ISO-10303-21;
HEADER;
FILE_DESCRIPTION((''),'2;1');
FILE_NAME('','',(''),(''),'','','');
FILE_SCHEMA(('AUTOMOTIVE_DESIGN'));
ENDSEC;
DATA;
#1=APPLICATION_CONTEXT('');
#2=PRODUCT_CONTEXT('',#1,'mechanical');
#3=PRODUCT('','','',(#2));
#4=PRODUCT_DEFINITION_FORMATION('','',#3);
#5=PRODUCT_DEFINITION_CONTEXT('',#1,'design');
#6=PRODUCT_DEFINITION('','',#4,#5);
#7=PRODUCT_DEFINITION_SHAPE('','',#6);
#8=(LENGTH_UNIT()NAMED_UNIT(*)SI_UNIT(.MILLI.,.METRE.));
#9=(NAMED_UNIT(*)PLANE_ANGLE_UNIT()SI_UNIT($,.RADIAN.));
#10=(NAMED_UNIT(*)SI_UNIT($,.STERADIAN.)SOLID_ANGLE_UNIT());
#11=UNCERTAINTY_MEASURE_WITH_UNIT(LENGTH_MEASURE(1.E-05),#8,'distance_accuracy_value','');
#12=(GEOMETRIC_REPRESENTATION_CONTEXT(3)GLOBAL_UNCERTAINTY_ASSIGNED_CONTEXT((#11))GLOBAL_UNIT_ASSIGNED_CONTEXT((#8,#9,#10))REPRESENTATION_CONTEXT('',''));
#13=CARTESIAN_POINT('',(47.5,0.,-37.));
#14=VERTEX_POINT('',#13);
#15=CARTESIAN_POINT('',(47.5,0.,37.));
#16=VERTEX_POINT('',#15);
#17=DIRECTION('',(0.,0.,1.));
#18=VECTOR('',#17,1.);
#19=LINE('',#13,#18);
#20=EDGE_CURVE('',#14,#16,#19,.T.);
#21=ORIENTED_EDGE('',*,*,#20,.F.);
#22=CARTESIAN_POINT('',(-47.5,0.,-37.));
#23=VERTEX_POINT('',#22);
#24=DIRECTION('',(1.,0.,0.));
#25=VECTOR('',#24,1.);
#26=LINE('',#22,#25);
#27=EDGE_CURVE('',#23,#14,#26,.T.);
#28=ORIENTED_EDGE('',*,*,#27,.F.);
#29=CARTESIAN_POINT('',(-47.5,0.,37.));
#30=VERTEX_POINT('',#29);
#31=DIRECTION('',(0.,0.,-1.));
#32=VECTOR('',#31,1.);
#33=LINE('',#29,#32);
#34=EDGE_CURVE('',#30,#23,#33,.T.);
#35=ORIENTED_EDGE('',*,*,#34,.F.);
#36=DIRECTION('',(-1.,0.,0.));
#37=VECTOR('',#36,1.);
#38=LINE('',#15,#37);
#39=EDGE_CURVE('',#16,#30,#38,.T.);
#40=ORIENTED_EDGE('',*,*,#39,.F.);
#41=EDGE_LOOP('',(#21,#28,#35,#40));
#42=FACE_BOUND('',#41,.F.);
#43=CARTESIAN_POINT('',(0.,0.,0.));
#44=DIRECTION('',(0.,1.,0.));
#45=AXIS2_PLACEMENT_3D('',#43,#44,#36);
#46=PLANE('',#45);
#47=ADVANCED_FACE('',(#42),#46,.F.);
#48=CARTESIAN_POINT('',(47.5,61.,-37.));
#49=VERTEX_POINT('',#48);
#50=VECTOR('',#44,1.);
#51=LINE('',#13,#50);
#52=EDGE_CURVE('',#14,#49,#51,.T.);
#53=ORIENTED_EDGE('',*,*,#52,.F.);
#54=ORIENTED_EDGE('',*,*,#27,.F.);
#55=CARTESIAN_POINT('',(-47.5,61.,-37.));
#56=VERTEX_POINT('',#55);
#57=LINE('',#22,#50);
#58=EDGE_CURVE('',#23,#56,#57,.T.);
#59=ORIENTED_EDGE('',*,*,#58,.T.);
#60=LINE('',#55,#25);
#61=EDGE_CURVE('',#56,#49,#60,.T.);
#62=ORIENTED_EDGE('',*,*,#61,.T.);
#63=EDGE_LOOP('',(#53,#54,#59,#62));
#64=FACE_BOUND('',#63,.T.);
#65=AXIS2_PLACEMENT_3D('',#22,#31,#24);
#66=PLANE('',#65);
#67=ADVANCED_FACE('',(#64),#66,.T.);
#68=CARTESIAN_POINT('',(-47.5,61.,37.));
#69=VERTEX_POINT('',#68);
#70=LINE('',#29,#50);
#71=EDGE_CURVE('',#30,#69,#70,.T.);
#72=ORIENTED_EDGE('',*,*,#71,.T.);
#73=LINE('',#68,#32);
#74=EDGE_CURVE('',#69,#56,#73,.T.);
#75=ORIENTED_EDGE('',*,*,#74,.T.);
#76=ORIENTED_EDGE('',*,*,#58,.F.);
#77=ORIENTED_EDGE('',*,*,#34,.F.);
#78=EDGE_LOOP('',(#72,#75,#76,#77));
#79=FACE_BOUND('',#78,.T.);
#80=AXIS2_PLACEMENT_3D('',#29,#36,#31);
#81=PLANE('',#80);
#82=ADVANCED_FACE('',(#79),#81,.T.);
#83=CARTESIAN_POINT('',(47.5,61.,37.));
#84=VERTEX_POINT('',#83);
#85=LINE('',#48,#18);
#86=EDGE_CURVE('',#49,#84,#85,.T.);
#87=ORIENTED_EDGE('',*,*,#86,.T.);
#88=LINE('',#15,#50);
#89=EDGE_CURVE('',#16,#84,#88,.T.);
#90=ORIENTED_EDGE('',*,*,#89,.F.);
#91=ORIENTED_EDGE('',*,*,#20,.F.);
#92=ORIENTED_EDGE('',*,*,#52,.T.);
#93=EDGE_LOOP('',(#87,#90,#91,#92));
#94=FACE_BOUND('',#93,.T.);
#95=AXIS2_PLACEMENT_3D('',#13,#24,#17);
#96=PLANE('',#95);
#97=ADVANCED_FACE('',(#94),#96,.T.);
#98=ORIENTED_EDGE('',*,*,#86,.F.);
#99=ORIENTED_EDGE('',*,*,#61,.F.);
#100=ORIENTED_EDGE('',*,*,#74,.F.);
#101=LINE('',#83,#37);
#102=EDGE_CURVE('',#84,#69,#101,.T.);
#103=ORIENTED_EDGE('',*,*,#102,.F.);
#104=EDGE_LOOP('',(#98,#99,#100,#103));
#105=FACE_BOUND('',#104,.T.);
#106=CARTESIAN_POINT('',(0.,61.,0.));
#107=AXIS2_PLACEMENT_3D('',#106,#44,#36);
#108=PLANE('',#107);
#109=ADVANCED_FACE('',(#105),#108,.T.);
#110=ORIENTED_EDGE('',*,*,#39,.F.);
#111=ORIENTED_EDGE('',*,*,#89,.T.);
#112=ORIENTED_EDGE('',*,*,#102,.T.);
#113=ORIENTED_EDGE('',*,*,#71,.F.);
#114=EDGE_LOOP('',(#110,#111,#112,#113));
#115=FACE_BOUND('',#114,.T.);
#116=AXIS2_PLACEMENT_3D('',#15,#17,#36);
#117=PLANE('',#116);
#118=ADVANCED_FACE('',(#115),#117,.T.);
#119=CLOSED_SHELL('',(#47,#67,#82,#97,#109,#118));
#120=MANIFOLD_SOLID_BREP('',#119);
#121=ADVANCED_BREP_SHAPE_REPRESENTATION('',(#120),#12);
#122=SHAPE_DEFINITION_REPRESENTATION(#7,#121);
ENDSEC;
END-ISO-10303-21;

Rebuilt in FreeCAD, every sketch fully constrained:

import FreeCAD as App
import Part
import Sketcher

doc = App.newDocument("Part")
body = doc.addObject("PartDesign::Body", "Body")

# Sketch on XZ plane
sketch1 = body.newObject("Sketcher::SketchObject", "Sketch")
sketch1.AttachmentSupport = (doc.getObject("XZ_Plane"), [""])
sketch1.MapMode = "FlatFace"
sketch1.addGeometry([
    Part.LineSegment(App.Vector(-48, 37, 0), App.Vector(48, 37, 0)),
    Part.LineSegment(App.Vector(48, 37, 0), App.Vector(48, -37, 0)),
    Part.LineSegment(App.Vector(48, -37, 0), App.Vector(-48, -37, 0)),
    Part.LineSegment(App.Vector(-48, -37, 0), App.Vector(-48, 37, 0)),
], False)
sketch1.addConstraint([
    Sketcher.Constraint("Coincident", 0, 2, 1, 1),
    Sketcher.Constraint("Coincident", 1, 2, 2, 1),
    Sketcher.Constraint("Coincident", 2, 2, 3, 1),
    Sketcher.Constraint("Coincident", 3, 2, 0, 1),
    Sketcher.Constraint("Horizontal", 0),
    Sketcher.Constraint("Vertical", 1),
    Sketcher.Constraint("Horizontal", 2),
    Sketcher.Constraint("Vertical", 3),
    Sketcher.Constraint("Symmetric", 0, 2, 2, 2, -1, 1),
    Sketcher.Constraint("DistanceX", 0, 1, 0, 2, 95.0),
    Sketcher.Constraint("DistanceY", 1, 2, 1, 1, 74.0),
])
pad1 = body.newObject("PartDesign::Pad", "Pad")
pad1.Profile = sketch1
pad1.Length = 61
pad1.Reversed = True

doc.recompute()
